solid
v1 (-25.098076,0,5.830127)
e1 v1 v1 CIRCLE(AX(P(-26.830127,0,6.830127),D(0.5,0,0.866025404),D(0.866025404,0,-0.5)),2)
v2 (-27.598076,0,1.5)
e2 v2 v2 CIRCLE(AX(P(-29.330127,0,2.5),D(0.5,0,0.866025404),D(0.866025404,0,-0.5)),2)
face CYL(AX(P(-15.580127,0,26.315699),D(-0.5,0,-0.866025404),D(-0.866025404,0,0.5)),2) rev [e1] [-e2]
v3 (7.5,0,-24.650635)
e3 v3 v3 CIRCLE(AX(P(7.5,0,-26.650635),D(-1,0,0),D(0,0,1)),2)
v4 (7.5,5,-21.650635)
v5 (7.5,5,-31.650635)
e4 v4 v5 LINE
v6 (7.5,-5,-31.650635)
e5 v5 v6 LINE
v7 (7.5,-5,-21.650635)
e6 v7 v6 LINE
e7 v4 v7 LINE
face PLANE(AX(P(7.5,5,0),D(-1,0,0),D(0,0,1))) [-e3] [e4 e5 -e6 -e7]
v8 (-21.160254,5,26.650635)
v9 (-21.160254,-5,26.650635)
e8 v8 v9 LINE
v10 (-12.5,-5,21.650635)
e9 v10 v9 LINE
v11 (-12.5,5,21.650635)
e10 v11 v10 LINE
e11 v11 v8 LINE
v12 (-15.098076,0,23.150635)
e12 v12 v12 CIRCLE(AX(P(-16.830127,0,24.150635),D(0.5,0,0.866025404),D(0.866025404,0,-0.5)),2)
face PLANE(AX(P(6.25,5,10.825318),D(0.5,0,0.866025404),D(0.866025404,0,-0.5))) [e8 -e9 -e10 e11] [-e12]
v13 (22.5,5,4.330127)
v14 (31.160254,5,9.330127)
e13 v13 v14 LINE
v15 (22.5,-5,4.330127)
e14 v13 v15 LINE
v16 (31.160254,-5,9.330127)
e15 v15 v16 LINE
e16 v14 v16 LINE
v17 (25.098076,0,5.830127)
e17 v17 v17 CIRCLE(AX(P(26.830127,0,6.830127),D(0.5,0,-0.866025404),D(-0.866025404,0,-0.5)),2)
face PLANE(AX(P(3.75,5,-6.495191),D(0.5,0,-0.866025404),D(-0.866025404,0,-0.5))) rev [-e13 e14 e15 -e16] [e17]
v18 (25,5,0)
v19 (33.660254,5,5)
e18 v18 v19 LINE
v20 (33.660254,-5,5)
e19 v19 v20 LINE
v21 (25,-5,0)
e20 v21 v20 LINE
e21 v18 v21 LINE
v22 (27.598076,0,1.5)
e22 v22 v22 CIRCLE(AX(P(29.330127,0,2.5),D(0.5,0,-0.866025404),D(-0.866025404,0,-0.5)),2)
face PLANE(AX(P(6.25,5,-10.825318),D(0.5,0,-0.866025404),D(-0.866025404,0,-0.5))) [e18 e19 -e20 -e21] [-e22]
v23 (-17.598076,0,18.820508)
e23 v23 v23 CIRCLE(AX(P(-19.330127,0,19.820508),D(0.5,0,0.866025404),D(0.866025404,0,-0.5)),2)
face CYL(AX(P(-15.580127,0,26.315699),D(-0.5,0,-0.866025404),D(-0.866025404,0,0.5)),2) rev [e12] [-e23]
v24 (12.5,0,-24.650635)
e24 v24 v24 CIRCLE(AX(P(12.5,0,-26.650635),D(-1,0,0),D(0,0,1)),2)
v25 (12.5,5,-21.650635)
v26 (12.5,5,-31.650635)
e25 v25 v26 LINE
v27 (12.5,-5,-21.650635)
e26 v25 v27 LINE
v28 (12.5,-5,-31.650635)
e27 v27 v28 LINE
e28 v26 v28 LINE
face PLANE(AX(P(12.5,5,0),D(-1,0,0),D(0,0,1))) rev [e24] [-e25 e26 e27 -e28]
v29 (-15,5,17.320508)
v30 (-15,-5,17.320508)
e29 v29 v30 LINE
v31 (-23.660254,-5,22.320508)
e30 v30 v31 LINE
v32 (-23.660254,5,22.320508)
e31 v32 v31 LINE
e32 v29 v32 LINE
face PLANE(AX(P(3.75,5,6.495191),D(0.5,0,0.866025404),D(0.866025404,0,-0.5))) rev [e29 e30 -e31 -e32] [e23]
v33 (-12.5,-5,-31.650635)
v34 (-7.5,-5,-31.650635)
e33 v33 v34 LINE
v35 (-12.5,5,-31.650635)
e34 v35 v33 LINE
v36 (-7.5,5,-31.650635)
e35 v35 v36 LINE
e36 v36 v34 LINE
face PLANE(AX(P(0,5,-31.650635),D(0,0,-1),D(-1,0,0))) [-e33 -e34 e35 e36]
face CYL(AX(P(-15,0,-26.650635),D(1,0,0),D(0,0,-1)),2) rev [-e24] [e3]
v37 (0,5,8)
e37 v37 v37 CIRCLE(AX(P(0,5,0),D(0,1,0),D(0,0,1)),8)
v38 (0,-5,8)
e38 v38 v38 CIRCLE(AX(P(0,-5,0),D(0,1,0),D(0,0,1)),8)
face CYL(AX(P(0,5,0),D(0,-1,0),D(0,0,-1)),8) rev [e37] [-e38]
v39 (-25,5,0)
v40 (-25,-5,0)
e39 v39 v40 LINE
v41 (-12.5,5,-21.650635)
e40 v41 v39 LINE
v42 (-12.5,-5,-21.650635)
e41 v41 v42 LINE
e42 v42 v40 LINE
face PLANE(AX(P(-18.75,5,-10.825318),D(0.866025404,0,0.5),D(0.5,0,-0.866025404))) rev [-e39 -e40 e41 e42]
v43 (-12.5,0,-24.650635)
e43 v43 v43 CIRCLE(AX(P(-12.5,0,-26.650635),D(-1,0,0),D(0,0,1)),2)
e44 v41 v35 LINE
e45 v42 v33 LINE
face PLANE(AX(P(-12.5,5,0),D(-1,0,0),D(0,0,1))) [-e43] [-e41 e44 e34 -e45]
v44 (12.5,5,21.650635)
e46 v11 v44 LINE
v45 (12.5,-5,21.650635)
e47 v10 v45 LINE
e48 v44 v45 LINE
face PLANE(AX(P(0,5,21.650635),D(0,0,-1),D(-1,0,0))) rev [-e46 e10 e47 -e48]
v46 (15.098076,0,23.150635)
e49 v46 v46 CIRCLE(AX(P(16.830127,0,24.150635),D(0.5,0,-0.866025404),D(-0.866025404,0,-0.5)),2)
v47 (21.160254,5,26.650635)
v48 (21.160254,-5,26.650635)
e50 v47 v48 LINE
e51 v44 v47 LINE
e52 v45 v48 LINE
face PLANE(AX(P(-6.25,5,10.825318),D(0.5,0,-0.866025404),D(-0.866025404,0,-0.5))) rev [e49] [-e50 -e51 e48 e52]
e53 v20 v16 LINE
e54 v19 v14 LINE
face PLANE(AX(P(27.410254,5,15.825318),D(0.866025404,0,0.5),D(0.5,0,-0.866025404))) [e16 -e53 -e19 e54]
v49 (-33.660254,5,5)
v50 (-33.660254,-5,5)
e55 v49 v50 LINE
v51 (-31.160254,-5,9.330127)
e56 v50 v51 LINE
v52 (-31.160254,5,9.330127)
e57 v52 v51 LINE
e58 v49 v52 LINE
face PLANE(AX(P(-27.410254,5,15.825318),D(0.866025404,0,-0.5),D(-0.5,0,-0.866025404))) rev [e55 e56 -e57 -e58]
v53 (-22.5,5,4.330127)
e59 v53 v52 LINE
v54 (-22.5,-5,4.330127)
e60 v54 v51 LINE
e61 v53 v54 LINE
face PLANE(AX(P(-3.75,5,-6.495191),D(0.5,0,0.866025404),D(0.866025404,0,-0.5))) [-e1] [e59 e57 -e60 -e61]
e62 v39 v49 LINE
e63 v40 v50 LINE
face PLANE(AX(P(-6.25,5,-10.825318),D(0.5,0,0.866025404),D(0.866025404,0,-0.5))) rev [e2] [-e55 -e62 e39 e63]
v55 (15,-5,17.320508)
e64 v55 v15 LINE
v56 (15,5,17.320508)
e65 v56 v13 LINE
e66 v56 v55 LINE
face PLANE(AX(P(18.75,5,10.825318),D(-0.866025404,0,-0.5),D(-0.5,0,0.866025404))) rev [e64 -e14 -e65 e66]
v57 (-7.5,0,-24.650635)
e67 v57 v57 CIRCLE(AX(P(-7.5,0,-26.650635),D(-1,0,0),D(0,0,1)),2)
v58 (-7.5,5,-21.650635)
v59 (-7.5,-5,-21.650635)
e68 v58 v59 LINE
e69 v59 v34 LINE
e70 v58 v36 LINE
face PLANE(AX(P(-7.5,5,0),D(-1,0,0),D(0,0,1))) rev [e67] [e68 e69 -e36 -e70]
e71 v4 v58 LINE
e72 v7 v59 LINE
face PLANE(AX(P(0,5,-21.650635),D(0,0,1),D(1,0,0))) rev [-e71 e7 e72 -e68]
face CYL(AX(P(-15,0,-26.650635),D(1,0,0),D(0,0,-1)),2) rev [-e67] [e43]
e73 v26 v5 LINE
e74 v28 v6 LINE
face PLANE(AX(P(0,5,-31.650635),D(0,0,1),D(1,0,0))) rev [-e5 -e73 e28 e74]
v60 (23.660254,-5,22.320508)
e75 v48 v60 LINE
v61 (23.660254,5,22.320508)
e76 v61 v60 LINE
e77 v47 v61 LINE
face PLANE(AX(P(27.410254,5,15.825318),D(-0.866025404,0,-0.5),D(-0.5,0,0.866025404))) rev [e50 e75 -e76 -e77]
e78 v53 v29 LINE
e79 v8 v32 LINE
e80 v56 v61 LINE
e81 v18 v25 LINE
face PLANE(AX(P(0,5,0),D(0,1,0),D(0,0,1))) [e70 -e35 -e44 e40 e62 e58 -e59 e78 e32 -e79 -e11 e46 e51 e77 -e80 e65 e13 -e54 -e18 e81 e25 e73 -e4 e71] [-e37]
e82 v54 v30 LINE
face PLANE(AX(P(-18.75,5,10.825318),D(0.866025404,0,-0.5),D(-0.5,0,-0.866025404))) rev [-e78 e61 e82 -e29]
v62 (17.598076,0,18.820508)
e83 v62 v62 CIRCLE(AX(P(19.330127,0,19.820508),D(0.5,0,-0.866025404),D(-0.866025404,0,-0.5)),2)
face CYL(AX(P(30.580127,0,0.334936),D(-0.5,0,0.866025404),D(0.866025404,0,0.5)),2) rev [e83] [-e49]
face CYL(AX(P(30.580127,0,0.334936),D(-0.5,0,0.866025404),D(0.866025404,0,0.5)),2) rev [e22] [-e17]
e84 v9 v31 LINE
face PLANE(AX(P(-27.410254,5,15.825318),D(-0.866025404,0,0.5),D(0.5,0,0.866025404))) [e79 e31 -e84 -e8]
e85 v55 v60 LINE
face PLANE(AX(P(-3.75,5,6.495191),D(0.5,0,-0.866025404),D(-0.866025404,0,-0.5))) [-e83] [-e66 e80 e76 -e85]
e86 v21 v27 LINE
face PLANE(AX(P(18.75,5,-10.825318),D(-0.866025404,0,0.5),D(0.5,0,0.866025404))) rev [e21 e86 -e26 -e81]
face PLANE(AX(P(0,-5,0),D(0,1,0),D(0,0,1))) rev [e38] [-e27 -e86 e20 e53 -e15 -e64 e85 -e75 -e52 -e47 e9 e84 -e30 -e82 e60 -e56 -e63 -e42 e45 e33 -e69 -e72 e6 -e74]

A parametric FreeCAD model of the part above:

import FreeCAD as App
import Part
import Sketcher
Q = App.Units.Quantity

doc = App.newDocument("Part")
params = doc.addObject("Spreadsheet::Sheet", "Params")
for row, (alias, value) in enumerate([
    ("sketch1_diameter", "16 mm"),
    ("sketch1_width", "5 mm"),
    ("sketch1_width2", "15 mm"),
    ("sketch1_height", "10 mm"),
    ("sketch1_length", "25 mm"),
    ("pad1_length", "10 mm"),
    ("sketch2_diameter", "4 mm"),
    ("pocket1_length", "30 mm"),
], start=1):
    params.set(f"A{row}", alias)
    params.set(f"B{row}", "=" + value)
    params.setAlias(f"B{row}", alias)

body = doc.addObject("PartDesign::Body", "Body")

# Sketch on XZ plane
sketch1 = body.newObject("Sketcher::SketchObject", "Sketch")
sketch1.AttachmentSupport = (doc.getObject("XZ_Plane"), [""])
sketch1.MapMode = "FlatFace"
sketch1.addGeometry([
    Part.LineSegment(App.Vector(25, 0, 0), App.Vector(12, -22, 0)),  # 0
    Part.LineSegment(App.Vector(12, -22, 0), App.Vector(12, -32, 0)),  # 1
    Part.LineSegment(App.Vector(12, -32, 0), App.Vector(8, -32, 0)),  # 2
    Part.LineSegment(App.Vector(8, -32, 0), App.Vector(8, -22, 0)),  # 3
    Part.LineSegment(App.Vector(8, -22, 0), App.Vector(-8, -22, 0)),  # 4
    Part.LineSegment(App.Vector(-8, -22, 0), App.Vector(-8, -32, 0)),  # 5
    Part.LineSegment(App.Vector(-8, -32, 0), App.Vector(-12, -32, 0)),  # 6
    Part.LineSegment(App.Vector(-12, -32, 0), App.Vector(-12, -22, 0)),  # 7
    Part.LineSegment(App.Vector(-12, -22, 0), App.Vector(-25, 0, 0)),  # 8
    Part.LineSegment(App.Vector(-25, 0, 0), App.Vector(-34, 5, 0)),  # 9
    Part.LineSegment(App.Vector(-34, 5, 0), App.Vector(-31, 9, 0)),  # 10
    Part.LineSegment(App.Vector(-31, 9, 0), App.Vector(-22, 4, 0)),  # 11
    Part.LineSegment(App.Vector(-22, 4, 0), App.Vector(-15, 17, 0)),  # 12
    Part.LineSegment(App.Vector(-15, 17, 0), App.Vector(-24, 22, 0)),  # 13
    Part.LineSegment(App.Vector(-24, 22, 0), App.Vector(-21, 27, 0)),  # 14
    Part.LineSegment(App.Vector(-21, 27, 0), App.Vector(-12, 22, 0)),  # 15
    Part.LineSegment(App.Vector(-12, 22, 0), App.Vector(12, 22, 0)),  # 16
    Part.LineSegment(App.Vector(12, 22, 0), App.Vector(21, 27, 0)),  # 17
    Part.LineSegment(App.Vector(21, 27, 0), App.Vector(24, 22, 0)),  # 18
    Part.LineSegment(App.Vector(24, 22, 0), App.Vector(15, 17, 0)),  # 19
    Part.LineSegment(App.Vector(15, 17, 0), App.Vector(22, 4, 0)),  # 20
    Part.LineSegment(App.Vector(22, 4, 0), App.Vector(31, 9, 0)),  # 21
    Part.LineSegment(App.Vector(31, 9, 0), App.Vector(34, 5, 0)),  # 22
    Part.LineSegment(App.Vector(34, 5, 0), App.Vector(25, 0, 0)),  # 23
    Part.Circle(App.Vector(0, 0, 0), App.Vector(0, 0, 1), 8),  # 24
], False)
sketch1.addConstraint([
    Sketcher.Constraint("Coincident", 0, 2, 1, 1),
    Sketcher.Constraint("Coincident", 1, 2, 2, 1),
    Sketcher.Constraint("Coincident", 2, 2, 3, 1),
    Sketcher.Constraint("Coincident", 3, 2, 4, 1),
    Sketcher.Constraint("Coincident", 4, 2, 5, 1),
    Sketcher.Constraint("Coincident", 5, 2, 6, 1),
    Sketcher.Constraint("Coincident", 6, 2, 7, 1),
    Sketcher.Constraint("Coincident", 7, 2, 8, 1),
    Sketcher.Constraint("Coincident", 8, 2, 9, 1),
    Sketcher.Constraint("Coincident", 9, 2, 10, 1),
    Sketcher.Constraint("Coincident", 10, 2, 11, 1),
    Sketcher.Constraint("Coincident", 11, 2, 12, 1),
    Sketcher.Constraint("Coincident", 12, 2, 13, 1),
    Sketcher.Constraint("Coincident", 13, 2, 14, 1),
    Sketcher.Constraint("Coincident", 14, 2, 15, 1),
    Sketcher.Constraint("Coincident", 15, 2, 16, 1),
    Sketcher.Constraint("Coincident", 16, 2, 17, 1),
    Sketcher.Constraint("Coincident", 17, 2, 18, 1),
    Sketcher.Constraint("Coincident", 18, 2, 19, 1),
    Sketcher.Constraint("Coincident", 19, 2, 20, 1),
    Sketcher.Constraint("Coincident", 20, 2, 21, 1),
    Sketcher.Constraint("Coincident", 21, 2, 22, 1),
    Sketcher.Constraint("Coincident", 22, 2, 23, 1),
    Sketcher.Constraint("Coincident", 23, 2, 0, 1),
    Sketcher.Constraint("Vertical", 1),
    Sketcher.Constraint("Horizontal", 2),
    Sketcher.Constraint("Vertical", 3),
    Sketcher.Constraint("Horizontal", 4),
    Sketcher.Constraint("Vertical", 5),
    Sketcher.Constraint("Horizontal", 6),
    Sketcher.Constraint("Vertical", 7),
    Sketcher.Constraint("Horizontal", 16),
    Sketcher.Constraint("Coincident", 24, 3, -1, 1),
    Sketcher.Constraint("Symmetric", 0, 2, 15, 2, -1, 1),
    Sketcher.Constraint("Symmetric", 7, 2, 16, 2, -1, 1),
    Sketcher.Constraint("Symmetric", 8, 2, 23, 2, -1, 1),
    Sketcher.Constraint("Symmetric", 2, 2, 5, 2, -2),
    Sketcher.Constraint("Symmetric", 14, 2, 17, 2, -2),
    Sketcher.Constraint("Symmetric", 13, 2, 18, 2, -2),
    Sketcher.Constraint("Symmetric", 12, 2, 19, 2, -2),
    Sketcher.Constraint("Symmetric", 11, 2, 20, 2, -2),
    Sketcher.Constraint("Symmetric", 10, 2, 21, 2, -2),
    Sketcher.Constraint("Symmetric", 9, 2, 22, 2, -2),
    Sketcher.Constraint("PointOnObject", 8, 2, -1),
    Sketcher.Constraint("Perpendicular", 0, 9),
    Sketcher.Constraint("Perpendicular", 9, 10),
    Sketcher.Constraint("Perpendicular", 10, 11),
    Sketcher.Constraint("Perpendicular", 11, 12),
    Sketcher.Constraint("Perpendicular", 12, 13),
    Sketcher.Constraint("Perpendicular", 13, 14),
    Sketcher.Constraint("Perpendicular", 14, 15),
    Sketcher.Constraint("Perpendicular", 8, 17),
    Sketcher.Constraint("Horizontal", 0, 2, 3, 2),
    Sketcher.Constraint("Equal", 9, 11),
    Sketcher.Constraint("Equal", 11, 13),
    Sketcher.Constraint("Equal", 10, 14),
    Sketcher.Constraint("Diameter", 24, Q("16 mm")),
    Sketcher.Constraint("DistanceX", 2, 2, 2, 1, Q("5 mm")),
    Sketcher.Constraint("DistanceX", 4, 2, 4, 1, Q("15 mm")),
    Sketcher.Constraint("DistanceY", 1, 2, 1, 1, Q("10 mm")),
    Sketcher.Constraint("Angle", 0, Q("-120 deg")),
    Sketcher.Constraint("Distance", 0, Q("25 mm")),
    Sketcher.Constraint("Distance", 9, Q("10 mm")),
    Sketcher.Constraint("Distance", 10, Q("5 mm")),
])
sketch1.setExpression("Constraints[56]", "Params.sketch1_diameter")
sketch1.setExpression("Constraints[57]", "Params.sketch1_width")
sketch1.setExpression("Constraints[58]", "Params.sketch1_width2")
sketch1.setExpression("Constraints[59]", "Params.sketch1_height")
sketch1.setExpression("Constraints[61]", "Params.sketch1_length")
pad1 = body.newObject("PartDesign::Pad", "Pad")
pad1.Profile = sketch1
pad1.setExpression("Length", "Params.pad1_length")
pad1.Midplane = True

# Sketch on YZ plane
sketch2 = body.newObject("Sketcher::SketchObject", "Sketch001")
sketch2.AttachmentSupport = (doc.getObject("YZ_Plane"), [""])
sketch2.MapMode = "FlatFace"
sketch2.addGeometry(Part.Circle(App.Vector(0, -26.7, 0), App.Vector(0, 0, 1), 2), False)
sketch2.addConstraint([
    Sketcher.Constraint("PointOnObject", 0, 3, -2),
    Sketcher.Constraint("Diameter", 0, Q("4 mm")),
    Sketcher.Constraint("DistanceY", 0, 3, -1, 1, Q("26.650635 mm")),
])
sketch2.setExpression("Constraints[1]", "Params.sketch2_diameter")
pocket1 = body.newObject("PartDesign::Pocket", "Pocket")
pocket1.Profile = sketch2
pocket1.setExpression("Length", "Params.pocket1_length")
pocket1.Midplane = True
doc.recompute()

polarpattern = body.newObject("PartDesign::PolarPattern", "PolarPattern")
polarpattern.Originals = [pocket1]
polarpattern.Axis = (doc.getObject("Y_Axis"), [""])
polarpattern.Angle = 360
polarpattern.Occurrences = 3
body.Tip = polarpattern

doc.recompute()
